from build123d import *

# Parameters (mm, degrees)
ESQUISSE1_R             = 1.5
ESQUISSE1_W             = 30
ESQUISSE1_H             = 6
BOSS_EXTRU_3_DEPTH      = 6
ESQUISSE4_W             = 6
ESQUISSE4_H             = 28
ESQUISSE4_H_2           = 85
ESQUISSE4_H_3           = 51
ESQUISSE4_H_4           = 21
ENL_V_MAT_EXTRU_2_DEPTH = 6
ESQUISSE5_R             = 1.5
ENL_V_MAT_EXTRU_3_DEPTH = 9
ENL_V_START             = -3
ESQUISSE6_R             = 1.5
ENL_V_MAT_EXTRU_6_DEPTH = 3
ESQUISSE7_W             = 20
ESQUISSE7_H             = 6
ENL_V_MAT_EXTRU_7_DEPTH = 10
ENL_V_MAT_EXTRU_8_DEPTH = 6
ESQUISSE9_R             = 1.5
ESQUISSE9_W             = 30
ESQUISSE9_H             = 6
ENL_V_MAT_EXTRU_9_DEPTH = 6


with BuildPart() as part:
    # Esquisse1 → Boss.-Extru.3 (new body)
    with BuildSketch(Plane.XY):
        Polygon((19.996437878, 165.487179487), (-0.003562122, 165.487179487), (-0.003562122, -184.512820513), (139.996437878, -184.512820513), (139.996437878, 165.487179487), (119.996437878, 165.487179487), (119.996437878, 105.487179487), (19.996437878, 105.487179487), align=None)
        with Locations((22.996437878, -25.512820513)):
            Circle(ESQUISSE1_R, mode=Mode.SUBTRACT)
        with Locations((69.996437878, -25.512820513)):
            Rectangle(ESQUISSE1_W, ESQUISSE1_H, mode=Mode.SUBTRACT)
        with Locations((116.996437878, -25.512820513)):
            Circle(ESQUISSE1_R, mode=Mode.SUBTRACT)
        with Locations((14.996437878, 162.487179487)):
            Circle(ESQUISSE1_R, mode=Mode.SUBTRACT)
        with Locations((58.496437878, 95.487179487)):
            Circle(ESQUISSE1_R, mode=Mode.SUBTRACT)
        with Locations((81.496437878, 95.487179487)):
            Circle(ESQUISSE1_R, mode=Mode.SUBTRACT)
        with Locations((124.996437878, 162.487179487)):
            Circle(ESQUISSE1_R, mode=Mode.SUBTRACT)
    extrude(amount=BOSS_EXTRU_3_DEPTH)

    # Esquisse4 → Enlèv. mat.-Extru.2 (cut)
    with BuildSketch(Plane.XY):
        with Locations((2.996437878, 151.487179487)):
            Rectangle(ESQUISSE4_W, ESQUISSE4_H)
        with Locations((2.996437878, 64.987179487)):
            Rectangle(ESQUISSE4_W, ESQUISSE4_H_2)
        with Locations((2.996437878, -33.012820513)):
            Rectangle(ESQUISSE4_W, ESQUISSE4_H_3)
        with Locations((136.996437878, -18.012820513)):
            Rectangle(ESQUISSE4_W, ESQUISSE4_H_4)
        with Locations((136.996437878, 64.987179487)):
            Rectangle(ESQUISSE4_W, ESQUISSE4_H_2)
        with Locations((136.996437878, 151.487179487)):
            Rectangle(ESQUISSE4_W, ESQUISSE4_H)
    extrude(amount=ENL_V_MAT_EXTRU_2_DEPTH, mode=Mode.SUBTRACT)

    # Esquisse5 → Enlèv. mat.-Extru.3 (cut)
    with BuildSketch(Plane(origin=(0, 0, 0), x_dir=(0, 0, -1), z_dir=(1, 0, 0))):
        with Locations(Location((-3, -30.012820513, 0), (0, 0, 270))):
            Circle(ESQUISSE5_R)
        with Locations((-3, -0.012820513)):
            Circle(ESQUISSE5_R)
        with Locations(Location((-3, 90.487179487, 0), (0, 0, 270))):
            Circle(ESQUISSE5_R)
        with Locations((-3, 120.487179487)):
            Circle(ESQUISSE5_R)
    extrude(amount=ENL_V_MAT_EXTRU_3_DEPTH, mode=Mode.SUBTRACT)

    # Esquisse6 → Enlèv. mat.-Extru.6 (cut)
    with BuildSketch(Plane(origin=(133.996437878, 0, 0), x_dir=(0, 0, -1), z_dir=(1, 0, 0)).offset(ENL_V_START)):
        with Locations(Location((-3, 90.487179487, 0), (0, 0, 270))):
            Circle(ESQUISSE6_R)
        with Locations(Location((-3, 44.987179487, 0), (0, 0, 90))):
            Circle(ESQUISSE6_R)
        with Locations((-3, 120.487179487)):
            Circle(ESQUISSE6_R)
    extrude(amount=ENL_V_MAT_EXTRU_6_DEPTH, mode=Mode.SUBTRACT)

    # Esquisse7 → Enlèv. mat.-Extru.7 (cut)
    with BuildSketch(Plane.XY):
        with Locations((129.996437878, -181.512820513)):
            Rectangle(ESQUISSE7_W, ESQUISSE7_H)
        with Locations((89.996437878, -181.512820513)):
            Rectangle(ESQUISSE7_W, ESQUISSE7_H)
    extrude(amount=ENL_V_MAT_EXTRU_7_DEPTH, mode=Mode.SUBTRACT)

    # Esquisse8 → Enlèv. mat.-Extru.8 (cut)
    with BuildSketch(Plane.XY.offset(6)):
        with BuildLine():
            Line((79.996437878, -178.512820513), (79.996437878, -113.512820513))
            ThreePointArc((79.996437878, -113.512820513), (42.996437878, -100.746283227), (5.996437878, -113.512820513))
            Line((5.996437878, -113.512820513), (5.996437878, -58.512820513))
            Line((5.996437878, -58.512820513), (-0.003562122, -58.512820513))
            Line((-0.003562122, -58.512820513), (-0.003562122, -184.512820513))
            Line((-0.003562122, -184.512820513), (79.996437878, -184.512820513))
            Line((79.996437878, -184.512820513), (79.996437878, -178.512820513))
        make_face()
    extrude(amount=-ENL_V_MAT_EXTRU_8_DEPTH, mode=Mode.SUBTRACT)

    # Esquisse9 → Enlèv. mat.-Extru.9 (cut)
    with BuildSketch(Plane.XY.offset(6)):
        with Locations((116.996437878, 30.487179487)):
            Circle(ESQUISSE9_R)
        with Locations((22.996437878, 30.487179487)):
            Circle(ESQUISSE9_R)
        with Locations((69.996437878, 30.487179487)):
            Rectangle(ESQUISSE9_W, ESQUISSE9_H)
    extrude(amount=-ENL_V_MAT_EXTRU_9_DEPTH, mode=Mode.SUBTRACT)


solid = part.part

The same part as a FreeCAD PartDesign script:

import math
import FreeCAD as App
import Part
import Sketcher
from FreeCAD import Vector
Q = App.Units.Quantity


def add_polygon(sketch, points):
    """Adds a closed chain of lines whose ends are joined by coincident constraints."""
    first, n = sketch.GeometryCount, len(points)
    for a, b in zip(points, points[1:] + points[:1]):
        sketch.addGeometry(Part.LineSegment(App.Vector(*a, 0), App.Vector(*b, 0)), False)
    for i in range(n):
        sketch.addConstraint(Sketcher.Constraint("Coincident", first + i, 2, first + (i + 1) % n, 1))

doc = App.newDocument("Part")
body = doc.addObject("PartDesign::Body", "Body")

# Sketch on XY plane
sketch1 = doc.addObject("Sketcher::SketchObject", "Sketch")
body.addObject(sketch1)
sketch1.AttachmentSupport = (doc.XY_Plane, [""])
sketch1.MapMode = "FlatFace"
add_polygon(sketch1, [(20, 165.5), (0, 165.5), (0, -184.5), (140, -184.5), (140, 165.5), (120, 165.5), (120, 105.5), (20, 105.5)])  # lines 0-7
sketch1.addGeometry(Part.Circle(Vector(23, -25.5, 0), Vector(0, 0, 1), 1.5), False)  # 8
add_polygon(sketch1, [(85, -28.5), (55, -28.5), (55, -22.5), (85, -22.5)])  # lines 9-12
sketch1.addGeometry(Part.Circle(Vector(117, -25.5, 0), Vector(0, 0, 1), 1.5), False)  # 13
sketch1.addGeometry(Part.Circle(Vector(58.5, 95.5, 0), Vector(0, 0, 1), 1.5), False)  # 14
sketch1.addGeometry(Part.Circle(Vector(15, 162.5, 0), Vector(0, 0, 1), 1.5), False)  # 15
sketch1.addGeometry(Part.Circle(Vector(81.5, 95.5, 0), Vector(0, 0, 1), 1.5), False)  # 16
sketch1.addGeometry(Part.Circle(Vector(125, 162.5, 0), Vector(0, 0, 1), 1.5), False)  # 17
sketch1.addConstraint([
    Sketcher.Constraint("Horizontal", 0),
    Sketcher.Constraint("Vertical", 1),
    Sketcher.Constraint("Horizontal", 2),
    Sketcher.Constraint("Vertical", 3),
    Sketcher.Constraint("Horizontal", 4),
    Sketcher.Constraint("Vertical", 5),
    Sketcher.Constraint("Horizontal", 6),
    Sketcher.Constraint("Vertical", 7),
    Sketcher.Constraint("Horizontal", 9),
    Sketcher.Constraint("Vertical", 10),
    Sketcher.Constraint("Horizontal", 11),
    Sketcher.Constraint("Vertical", 12),
    Sketcher.Constraint("Equal", 8, 13),
    Sketcher.Constraint("Equal", 13, 14),
    Sketcher.Constraint("Equal", 14, 15),
    Sketcher.Constraint("Equal", 15, 16),
    Sketcher.Constraint("Equal", 16, 17),
    Sketcher.Constraint("Horizontal", 8, 3, 13, 3),
    Sketcher.Constraint("Horizontal", 14, 3, 16, 3),
    Sketcher.Constraint("Horizontal", 15, 3, 17, 3),
    Sketcher.Constraint("Horizontal", 0, 2, 3, 2),
    Sketcher.Constraint("Equal", 0, 4),
    Sketcher.Constraint("Diameter", 8, Q("3 mm")),
    Sketcher.Constraint("DistanceX", 0, 2, 0, 1, Q("20 mm")),
    Sketcher.Constraint("DistanceX", 2, 1, 2, 2, Q("140 mm")),
    Sketcher.Constraint("DistanceX", 9, 2, 9, 1, Q("30 mm")),
    Sketcher.Constraint("DistanceY", 1, 2, 1, 1, Q("350 mm")),
    Sketcher.Constraint("DistanceY", 5, 2, 5, 1, Q("60 mm")),
    Sketcher.Constraint("DistanceY", 10, 1, 10, 2, Q("6 mm")),
    Sketcher.Constraint("DistanceX", 8, 3, 13, 3, Q("94 mm")),
    Sketcher.Constraint("DistanceY", 8, 3, 14, 3, Q("121 mm")),
    Sketcher.Constraint("DistanceY", 14, 3, 15, 3, Q("67 mm")),
    Sketcher.Constraint("DistanceX", 15, 3, 8, 3, Q("8 mm")),
    Sketcher.Constraint("DistanceX", 14, 3, 16, 3, Q("23 mm")),
    Sketcher.Constraint("DistanceX", 15, 3, 17, 3, Q("110 mm")),
    Sketcher.Constraint("DistanceX", 0, 2, 15, 3, Q("15 mm")),
    Sketcher.Constraint("DistanceY", 15, 3, 0, 2, Q("3 mm")),
    Sketcher.Constraint("DistanceX", 8, 3, 9, 2, Q("32 mm")),
    Sketcher.Constraint("DistanceY", 9, 2, 8, 3, Q("3 mm")),
    Sketcher.Constraint("DistanceX", 8, 3, 14, 3, Q("35.5 mm")),
    Sketcher.Constraint("DistanceY", 8, 3, -1, 1, Q("25.512821 mm")),
    Sketcher.Constraint("DistanceX", -1, 1, 8, 3, Q("22.996438 mm")),
])
pad1 = doc.addObject("PartDesign::Pad", "Pad")
body.addObject(pad1)
pad1.Profile = sketch1
pad1.Length = 6

# Sketch on XY plane
sketch2 = doc.addObject("Sketcher::SketchObject", "Sketch001")
body.addObject(sketch2)
sketch2.AttachmentSupport = (doc.XY_Plane, [""])
sketch2.MapMode = "FlatFace"
add_polygon(sketch2, [(0, 165), (0, 137), (6, 137), (6, 165)])  # lines 0-3
add_polygon(sketch2, [(0, 107), (0, 22), (6, 22), (6, 107)])  # lines 4-7
add_polygon(sketch2, [(0, -8), (0, -59), (6, -59), (6, -8)])  # lines 8-11
add_polygon(sketch2, [(134, -8), (134, -29), (140, -29), (140, -8)])  # lines 12-15
add_polygon(sketch2, [(134, 107), (134, 22), (140, 22), (140, 107)])  # lines 16-19
add_polygon(sketch2, [(134, 165), (134, 137), (140, 137), (140, 165)])  # lines 20-23
sketch2.addConstraint([
    Sketcher.Constraint("Vertical", 0),
    Sketcher.Constraint("Horizontal", 1),
    Sketcher.Constraint("Vertical", 2),
    Sketcher.Constraint("Horizontal", 3),
    Sketcher.Constraint("Vertical", 4),
    Sketcher.Constraint("Horizontal", 5),
    Sketcher.Constraint("Vertical", 6),
    Sketcher.Constraint("Horizontal", 7),
    Sketcher.Constraint("Vertical", 8),
    Sketcher.Constraint("Horizontal", 9),
    Sketcher.Constraint("Vertical", 10),
    Sketcher.Constraint("Horizontal", 11),
    Sketcher.Constraint("Vertical", 12),
    Sketcher.Constraint("Horizontal", 13),
    Sketcher.Constraint("Vertical", 14),
    Sketcher.Constraint("Horizontal", 15),
    Sketcher.Constraint("Vertical", 16),
    Sketcher.Constraint("Horizontal", 17),
    Sketcher.Constraint("Vertical", 18),
    Sketcher.Constraint("Horizontal", 19),
    Sketcher.Constraint("Vertical", 20),
    Sketcher.Constraint("Horizontal", 21),
    Sketcher.Constraint("Vertical", 22),
    Sketcher.Constraint("Horizontal", 23),
    Sketcher.Constraint("Horizontal", 11, 2, 14, 2),
    Sketcher.Constraint("Horizontal", 5, 2, 16, 2),
    Sketcher.Constraint("Horizontal", 7, 2, 18, 2),
    Sketcher.Constraint("Horizontal", 1, 2, 20, 2),
    Sketcher.Constraint("Horizontal", 3, 2, 22, 2),
    Sketcher.Constraint("Vertical", 3, 2, 4, 2),
    Sketcher.Constraint("Vertical", 2, 2, 5, 2),
    Sketcher.Constraint("Vertical", 7, 2, 8, 2),
    Sketcher.Constraint("Vertical", 6, 2, 9, 2),
    Sketcher.Constraint("Vertical", 15, 2, 16, 2),
    Sketcher.Constraint("Vertical", 14, 2, 17, 2),
    Sketcher.Constraint("Vertical", 19, 2, 20, 2),
    Sketcher.Constraint("Vertical", 18, 2, 21, 2),
    Sketcher.Constraint("Equal", 11, 13),
    Sketcher.Constraint("DistanceX", 1, 1, 1, 2, Q("6 mm")),
    Sketcher.Constraint("DistanceY", 0, 2, 0, 1, Q("28 mm")),
    Sketcher.Constraint("DistanceY", 4, 2, 4, 1, Q("85 mm")),
    Sketcher.Constraint("DistanceY", 8, 2, 8, 1, Q("51 mm")),
    Sketcher.Constraint("DistanceY", 12, 2, 12, 1, Q("21 mm")),
    Sketcher.Constraint("DistanceY", 4, 2, 0, 2, Q("115 mm")),
    Sketcher.Constraint("DistanceY", 8, 2, 4, 2, Q("81 mm")),
    Sketcher.Constraint("DistanceX", 10, 2, 12, 2, Q("128 mm")),
    Sketcher.Constraint("DistanceY", -1, 1, 0, 2, Q("137.487179 mm")),
    Sketcher.Constraint("DistanceX", 0, 2, -1, 1, Q("0.003562 mm")),
])
pocket1 = doc.addObject("PartDesign::Pocket", "Pocket")
body.addObject(pocket1)
pocket1.Profile = sketch2
pocket1.Length = 6
pocket1.Reversed = True

# Sketch on YZ plane
sketch3 = doc.addObject("Sketcher::SketchObject", "Sketch002")
body.addObject(sketch3)
sketch3.AttachmentSupport = (doc.YZ_Plane, [""])
sketch3.MapMode = "FlatFace"
sketch3.addGeometry([
    Part.Circle(Vector(-30, 3, 0), Vector(0, 0, 1), 1.5),
    Part.Circle(Vector(0, 3, 0), Vector(0, 0, 1), 1.5),
    Part.Circle(Vector(90.5, 3, 0), Vector(0, 0, 1), 1.5),
    Part.Circle(Vector(120.5, 3, 0), Vector(0, 0, 1), 1.5),
], False)
sketch3.addConstraint([
    Sketcher.Constraint("Equal", 0, 1),
    Sketcher.Constraint("Equal", 1, 2),
    Sketcher.Constraint("Equal", 2, 3),
    Sketcher.Constraint("Horizontal", 0, 3, 1, 3),
    Sketcher.Constraint("Horizontal", 1, 3, 2, 3),
    Sketcher.Constraint("Horizontal", 2, 3, 3, 3),
    Sketcher.Constraint("Diameter", 0, Q("3 mm")),
    Sketcher.Constraint("DistanceY", -1, 1, 0, 3, Q("3 mm")),
    Sketcher.Constraint("DistanceX", 0, 3, 1, 3, Q("30 mm")),
    Sketcher.Constraint("DistanceX", 2, 3, 3, 3, Q("30 mm")),
    Sketcher.Constraint("DistanceX", 1, 3, 2, 3, Q("90.5 mm")),
    Sketcher.Constraint("DistanceX", 0, 3, -1, 1, Q("30.012821 mm")),
])
pocket2 = doc.addObject("PartDesign::Pocket", "Pocket001")
body.addObject(pocket2)
pocket2.Profile = sketch3
pocket2.Length = 9
pocket2.Reversed = True

# Sketch on YZ plane
sketch4 = doc.addObject("Sketcher::SketchObject", "Sketch003")
body.addObject(sketch4)
sketch4.AttachmentSupport = (doc.YZ_Plane, [""])
sketch4.MapMode = "FlatFace"
sketch4.AttachmentOffset = App.Placement(Vector(0, 0, 130.996438), App.Rotation())
sketch4.addGeometry([
    Part.Circle(Vector(90.5, 3, 0), Vector(0, 0, 1), 1.5),
    Part.Circle(Vector(45, 3, 0), Vector(0, 0, 1), 1.5),
    Part.Circle(Vector(120.5, 3, 0), Vector(0, 0, 1), 1.5),
], False)
sketch4.addConstraint([
    Sketcher.Constraint("Equal", 0, 1),
    Sketcher.Constraint("Equal", 1, 2),
    Sketcher.Constraint("Horizontal", 0, 3, 1, 3),
    Sketcher.Constraint("Horizontal", 1, 3, 2, 3),
    Sketcher.Constraint("Diameter", 0, Q("3 mm")),
    Sketcher.Constraint("DistanceY", -1, 1, 0, 3, Q("3 mm")),
    Sketcher.Constraint("DistanceX", 0, 3, 2, 3, Q("30 mm")),
    Sketcher.Constraint("DistanceX", 1, 3, 0, 3, Q("45.5 mm")),
    Sketcher.Constraint("DistanceX", -1, 1, 0, 3, Q("90.487179 mm")),
])
pocket3 = doc.addObject("PartDesign::Pocket", "Pocket002")
body.addObject(pocket3)
pocket3.Profile = sketch4
pocket3.Length = 3
pocket3.Reversed = True

# Sketch on XY plane
sketch5 = doc.addObject("Sketcher::SketchObject", "Sketch004")
body.addObject(sketch5)
sketch5.AttachmentSupport = (doc.XY_Plane, [""])
sketch5.MapMode = "FlatFace"
add_polygon(sketch5, [(120, -179), (120, -185), (140, -185), (140, -179)])  # lines 0-3
add_polygon(sketch5, [(80, -179), (80, -185), (100, -185), (100, -179)])  # lines 4-7
sketch5.addConstraint([
    Sketcher.Constraint("Vertical", 0),
    Sketcher.Constraint("Horizontal", 1),
    Sketcher.Constraint("Vertical", 2),
    Sketcher.Constraint("Horizontal", 3),
    Sketcher.Constraint("Vertical", 4),
    Sketcher.Constraint("Horizontal", 5),
    Sketcher.Constraint("Vertical", 6),
    Sketcher.Constraint("Horizontal", 7),
    Sketcher.Constraint("Horizontal", 1, 2, 4, 2),
    Sketcher.Constraint("Horizontal", 3, 2, 6, 2),
    Sketcher.Constraint("Equal", 3, 5),
    Sketcher.Constraint("DistanceX", 1, 1, 1, 2, Q("20 mm")),
    Sketcher.Constraint("DistanceY", 0, 2, 0, 1, Q("6 mm")),
    Sketcher.Constraint("DistanceX", 4, 2, 0, 2, Q("40 mm")),
    Sketcher.Constraint("DistanceY", 0, 2, -1, 1, Q("184.512821 mm")),
    Sketcher.Constraint("DistanceX", -1, 1, 0, 2, Q("119.996438 mm")),
])
pocket4 = doc.addObject("PartDesign::Pocket", "Pocket003")
body.addObject(pocket4)
pocket4.Profile = sketch5
pocket4.Length = 10
pocket4.Reversed = True

# Sketch on XY plane
sketch6 = doc.addObject("Sketcher::SketchObject", "Sketch005")
body.addObject(sketch6)
sketch6.AttachmentSupport = (doc.XY_Plane, [""])
sketch6.MapMode = "FlatFace"
sketch6.AttachmentOffset = App.Placement(Vector(0, 0, 6), App.Rotation())
sketch6.addGeometry([
    Part.ArcOfCircle(Part.Circle(Vector(43, -161, 0), Vector(0, 0, 1), 60), math.radians(52), math.radians(128)),  # 0
    Part.LineSegment(Vector(6, -114, 0), Vector(6, -59, 0)),  # 1
    Part.LineSegment(Vector(6, -59, 0), Vector(0, -59, 0)),  # 2
    Part.LineSegment(Vector(0, -59, 0), Vector(0, -185, 0)),  # 3
    Part.LineSegment(Vector(0, -185, 0), Vector(80, -185, 0)),  # 4
    Part.LineSegment(Vector(80, -185, 0), Vector(80, -114, 0)),  # 5
], False)
sketch6.addConstraint([
    Sketcher.Constraint("Coincident", 0, 2, 1, 1),
    Sketcher.Constraint("Coincident", 1, 2, 2, 1),
    Sketcher.Constraint("Coincident", 2, 2, 3, 1),
    Sketcher.Constraint("Coincident", 3, 2, 4, 1),
    Sketcher.Constraint("Coincident", 4, 2, 5, 1),
    Sketcher.Constraint("Coincident", 5, 2, 0, 1),
    Sketcher.Constraint("Vertical", 1),
    Sketcher.Constraint("Horizontal", 2),
    Sketcher.Constraint("Vertical", 3),
    Sketcher.Constraint("Horizontal", 4),
    Sketcher.Constraint("Vertical", 5),
    Sketcher.Constraint("Horizontal", 0, 2, 5, 2),
    Sketcher.Constraint("Radius", 0, Q("60 mm")),
    Sketcher.Constraint("DistanceX", 2, 2, 2, 1, Q("6 mm")),
    Sketcher.Constraint("DistanceX", 4, 1, 4, 2, Q("80 mm")),
    Sketcher.Constraint("DistanceY", 1, 1, 1, 2, Q("55 mm")),
    Sketcher.Constraint("DistanceY", 3, 2, 3, 1, Q("126 mm")),
    Sketcher.Constraint("DistanceY", 0, 2, -1, 1, Q("113.512821 mm")),
    Sketcher.Constraint("DistanceX", -1, 1, 0, 3, Q("42.996438 mm")),
])
pocket5 = doc.addObject("PartDesign::Pocket", "Pocket004")
body.addObject(pocket5)
pocket5.Profile = sketch6
pocket5.Length = 6

# Sketch on XY plane
sketch7 = doc.addObject("Sketcher::SketchObject", "Sketch006")
body.addObject(sketch7)
sketch7.AttachmentSupport = (doc.XY_Plane, [""])
sketch7.MapMode = "FlatFace"
sketch7.AttachmentOffset = App.Placement(Vector(0, 0, 6), App.Rotation())
sketch7.addGeometry(Part.Circle(Vector(117, 30.5, 0), Vector(0, 0, 1), 1.5), False)  # 0
sketch7.addGeometry(Part.Circle(Vector(23, 30.5, 0), Vector(0, 0, 1), 1.5), False)  # 1
add_polygon(sketch7, [(55, 33.5), (55, 27.5), (85, 27.5), (85, 33.5)])  # lines 2-5
sketch7.addConstraint([
    Sketcher.Constraint("Vertical", 2),
    Sketcher.Constraint("Horizontal", 3),
    Sketcher.Constraint("Vertical", 4),
    Sketcher.Constraint("Horizontal", 5),
    Sketcher.Constraint("Equal", 0, 1),
    Sketcher.Constraint("Horizontal", 0, 3, 1, 3),
    Sketcher.Constraint("Diameter", 0, Q("3 mm")),
    Sketcher.Constraint("DistanceX", 3, 1, 3, 2, Q("30 mm")),
    Sketcher.Constraint("DistanceY", 2, 2, 2, 1, Q("6 mm")),
    Sketcher.Constraint("DistanceX", 1, 3, 0, 3, Q("94 mm")),
    Sketcher.Constraint("DistanceX", 1, 3, 2, 2, Q("32 mm")),
    Sketcher.Constraint("DistanceY", 2, 2, 1, 3, Q("3 mm")),
    Sketcher.Constraint("DistanceY", -1, 1, 0, 3, Q("30.487179 mm")),
    Sketcher.Constraint("DistanceX", -1, 1, 0, 3, Q("116.996438 mm")),
])
pocket6 = doc.addObject("PartDesign::Pocket", "Pocket005")
body.addObject(pocket6)
pocket6.Profile = sketch7
pocket6.Length = 6

doc.recompute()
